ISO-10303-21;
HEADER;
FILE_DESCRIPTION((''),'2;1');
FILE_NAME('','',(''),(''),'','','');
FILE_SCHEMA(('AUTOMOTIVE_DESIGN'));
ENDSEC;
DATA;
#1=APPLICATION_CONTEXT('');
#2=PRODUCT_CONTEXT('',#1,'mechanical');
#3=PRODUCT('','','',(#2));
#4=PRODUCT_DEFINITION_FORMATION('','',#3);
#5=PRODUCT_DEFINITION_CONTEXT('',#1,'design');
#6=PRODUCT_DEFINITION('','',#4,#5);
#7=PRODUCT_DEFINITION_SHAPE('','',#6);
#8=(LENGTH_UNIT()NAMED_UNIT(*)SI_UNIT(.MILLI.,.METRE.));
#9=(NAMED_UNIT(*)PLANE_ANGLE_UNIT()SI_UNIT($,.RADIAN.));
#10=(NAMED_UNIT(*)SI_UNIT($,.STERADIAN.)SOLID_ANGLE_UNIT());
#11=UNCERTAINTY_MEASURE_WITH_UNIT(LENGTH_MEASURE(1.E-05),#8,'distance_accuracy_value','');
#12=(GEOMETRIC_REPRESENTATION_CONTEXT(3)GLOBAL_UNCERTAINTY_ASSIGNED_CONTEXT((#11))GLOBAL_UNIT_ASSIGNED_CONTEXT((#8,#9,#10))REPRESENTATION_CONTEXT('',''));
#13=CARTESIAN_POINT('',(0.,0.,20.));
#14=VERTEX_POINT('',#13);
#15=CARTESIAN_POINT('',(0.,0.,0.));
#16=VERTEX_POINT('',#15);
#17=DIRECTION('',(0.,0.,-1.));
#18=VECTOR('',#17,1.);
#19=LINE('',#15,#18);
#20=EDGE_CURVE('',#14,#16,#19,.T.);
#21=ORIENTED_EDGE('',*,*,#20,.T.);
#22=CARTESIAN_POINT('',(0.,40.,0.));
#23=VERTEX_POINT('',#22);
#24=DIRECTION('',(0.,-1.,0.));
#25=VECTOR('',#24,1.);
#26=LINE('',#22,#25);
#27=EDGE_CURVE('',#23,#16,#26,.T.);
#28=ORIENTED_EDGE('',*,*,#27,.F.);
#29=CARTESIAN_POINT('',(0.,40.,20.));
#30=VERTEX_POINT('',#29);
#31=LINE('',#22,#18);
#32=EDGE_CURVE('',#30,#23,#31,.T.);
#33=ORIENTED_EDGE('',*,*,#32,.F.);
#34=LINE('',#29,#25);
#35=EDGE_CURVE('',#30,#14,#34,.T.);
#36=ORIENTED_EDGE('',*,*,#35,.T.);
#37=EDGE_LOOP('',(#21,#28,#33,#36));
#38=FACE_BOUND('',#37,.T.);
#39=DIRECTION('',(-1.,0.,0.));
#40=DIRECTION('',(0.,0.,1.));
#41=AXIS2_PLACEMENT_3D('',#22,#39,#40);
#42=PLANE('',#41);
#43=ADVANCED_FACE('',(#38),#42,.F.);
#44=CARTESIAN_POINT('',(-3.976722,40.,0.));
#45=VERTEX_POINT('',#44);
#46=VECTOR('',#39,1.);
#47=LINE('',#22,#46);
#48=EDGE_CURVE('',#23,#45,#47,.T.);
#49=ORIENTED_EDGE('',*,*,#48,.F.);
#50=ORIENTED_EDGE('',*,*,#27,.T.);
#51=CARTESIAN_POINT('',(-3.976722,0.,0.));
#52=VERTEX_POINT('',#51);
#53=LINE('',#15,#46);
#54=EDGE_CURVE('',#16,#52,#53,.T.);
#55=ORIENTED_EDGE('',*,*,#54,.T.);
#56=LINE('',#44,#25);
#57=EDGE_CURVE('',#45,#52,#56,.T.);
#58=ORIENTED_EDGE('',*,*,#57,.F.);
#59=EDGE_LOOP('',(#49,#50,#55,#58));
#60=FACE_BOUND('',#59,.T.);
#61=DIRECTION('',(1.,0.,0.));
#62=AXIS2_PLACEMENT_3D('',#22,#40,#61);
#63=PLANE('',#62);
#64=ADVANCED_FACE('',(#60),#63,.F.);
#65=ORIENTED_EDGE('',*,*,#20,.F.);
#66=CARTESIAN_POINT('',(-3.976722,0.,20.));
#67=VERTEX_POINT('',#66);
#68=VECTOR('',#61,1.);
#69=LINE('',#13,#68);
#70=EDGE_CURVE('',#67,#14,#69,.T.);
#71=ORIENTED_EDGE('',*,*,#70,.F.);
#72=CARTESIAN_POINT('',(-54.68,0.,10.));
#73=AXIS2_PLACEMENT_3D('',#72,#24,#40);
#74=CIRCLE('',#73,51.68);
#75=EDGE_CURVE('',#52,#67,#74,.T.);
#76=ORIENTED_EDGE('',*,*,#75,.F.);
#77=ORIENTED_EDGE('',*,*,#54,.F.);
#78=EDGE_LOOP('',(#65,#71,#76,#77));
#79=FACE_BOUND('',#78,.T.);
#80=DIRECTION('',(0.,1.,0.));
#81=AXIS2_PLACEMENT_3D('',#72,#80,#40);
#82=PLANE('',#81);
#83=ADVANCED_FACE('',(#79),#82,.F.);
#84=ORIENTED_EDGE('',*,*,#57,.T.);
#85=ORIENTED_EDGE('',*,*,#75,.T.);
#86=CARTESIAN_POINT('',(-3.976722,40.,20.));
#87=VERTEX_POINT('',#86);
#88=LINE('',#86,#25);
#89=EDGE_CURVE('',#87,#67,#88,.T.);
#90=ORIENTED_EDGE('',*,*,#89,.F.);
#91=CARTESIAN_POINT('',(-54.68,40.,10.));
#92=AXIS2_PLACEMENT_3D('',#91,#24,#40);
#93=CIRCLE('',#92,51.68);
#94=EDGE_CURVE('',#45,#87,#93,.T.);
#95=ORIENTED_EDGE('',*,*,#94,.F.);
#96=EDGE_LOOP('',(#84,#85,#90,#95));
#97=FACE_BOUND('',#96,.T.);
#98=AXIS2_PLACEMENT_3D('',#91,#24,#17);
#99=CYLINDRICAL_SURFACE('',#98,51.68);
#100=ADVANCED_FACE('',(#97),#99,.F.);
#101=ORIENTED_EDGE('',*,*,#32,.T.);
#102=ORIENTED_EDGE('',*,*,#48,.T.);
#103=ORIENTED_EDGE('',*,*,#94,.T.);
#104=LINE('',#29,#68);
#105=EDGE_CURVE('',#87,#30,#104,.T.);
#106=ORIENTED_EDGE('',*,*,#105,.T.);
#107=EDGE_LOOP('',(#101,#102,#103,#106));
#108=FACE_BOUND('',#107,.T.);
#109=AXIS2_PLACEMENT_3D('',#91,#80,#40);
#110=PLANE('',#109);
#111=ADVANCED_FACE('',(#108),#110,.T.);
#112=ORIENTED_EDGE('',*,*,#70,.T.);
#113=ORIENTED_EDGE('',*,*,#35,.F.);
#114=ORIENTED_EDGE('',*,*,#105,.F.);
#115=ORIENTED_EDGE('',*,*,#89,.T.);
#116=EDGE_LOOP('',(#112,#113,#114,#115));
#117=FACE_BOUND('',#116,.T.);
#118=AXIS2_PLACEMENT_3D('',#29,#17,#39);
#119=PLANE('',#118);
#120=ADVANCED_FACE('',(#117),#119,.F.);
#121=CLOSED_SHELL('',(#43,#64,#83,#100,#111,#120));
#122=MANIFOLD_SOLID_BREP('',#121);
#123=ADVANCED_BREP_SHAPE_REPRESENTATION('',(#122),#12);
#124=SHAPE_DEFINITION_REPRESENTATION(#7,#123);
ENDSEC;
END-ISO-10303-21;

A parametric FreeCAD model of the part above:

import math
import FreeCAD as App
import Part
import Sketcher
Q = App.Units.Quantity

doc = App.newDocument("Part")
body = doc.addObject("PartDesign::Body", "Body")

# Sketch on XZ plane
sketch1 = doc.addObject("Sketcher::SketchObject", "Sketch")
body.addObject(sketch1)
sketch1.AttachmentSupport = (doc.XZ_Plane, [""])
sketch1.MapMode = "FlatFace"
sketch1.addGeometry(Part.LineSegment(App.Vector(0, 20, 0), App.Vector(0, 0, 0)), False)
sketch1.addGeometry(Part.LineSegment(App.Vector(0, 0, 0), App.Vector(-3.976722, 0, 0)), False)
sketch1.addGeometry(Part.ArcOfCircle(Part.Circle(App.Vector(-54.68, 10, 0), App.Vector(0, 0, 1), 51.68), math.radians(-11.157021), math.radians(11.157021)), False)
sketch1.addGeometry(Part.LineSegment(App.Vector(-3.976722, 20, 0), App.Vector(0, 20, 0)), False)
sketch1.addConstraint(Sketcher.Constraint("Coincident", 0, 2, 1, 1))
sketch1.addConstraint(Sketcher.Constraint("Coincident", 1, 2, 2, 1))
sketch1.addConstraint(Sketcher.Constraint("Coincident", 2, 2, 3, 1))
sketch1.addConstraint(Sketcher.Constraint("Coincident", 3, 2, 0, 1))
sketch1.addConstraint(Sketcher.Constraint("Vertical", 0))
sketch1.addConstraint(Sketcher.Constraint("Horizontal", 1))
sketch1.addConstraint(Sketcher.Constraint("Horizontal", 3))
sketch1.addConstraint(Sketcher.Constraint("Coincident", 0, 2, -1, 1))
sketch1.addConstraint(Sketcher.Constraint("Vertical", 1, 2, 2, 2))
sketch1.addConstraint(Sketcher.Constraint("DistanceY", 0, 2, 0, 1, Q("20 mm")))
sketch1.addConstraint(Sketcher.Constraint("Radius", 2, Q("51.68 mm")))
sketch1.addConstraint(Sketcher.Constraint("DistanceX", 2, 3, -1, 1, Q("54.68 mm")))
pad1 = doc.addObject("PartDesign::Pad", "Pad")
body.addObject(pad1)
pad1.Profile = sketch1
pad1.Length = 40
pad1.Reversed = True

doc.recompute()
